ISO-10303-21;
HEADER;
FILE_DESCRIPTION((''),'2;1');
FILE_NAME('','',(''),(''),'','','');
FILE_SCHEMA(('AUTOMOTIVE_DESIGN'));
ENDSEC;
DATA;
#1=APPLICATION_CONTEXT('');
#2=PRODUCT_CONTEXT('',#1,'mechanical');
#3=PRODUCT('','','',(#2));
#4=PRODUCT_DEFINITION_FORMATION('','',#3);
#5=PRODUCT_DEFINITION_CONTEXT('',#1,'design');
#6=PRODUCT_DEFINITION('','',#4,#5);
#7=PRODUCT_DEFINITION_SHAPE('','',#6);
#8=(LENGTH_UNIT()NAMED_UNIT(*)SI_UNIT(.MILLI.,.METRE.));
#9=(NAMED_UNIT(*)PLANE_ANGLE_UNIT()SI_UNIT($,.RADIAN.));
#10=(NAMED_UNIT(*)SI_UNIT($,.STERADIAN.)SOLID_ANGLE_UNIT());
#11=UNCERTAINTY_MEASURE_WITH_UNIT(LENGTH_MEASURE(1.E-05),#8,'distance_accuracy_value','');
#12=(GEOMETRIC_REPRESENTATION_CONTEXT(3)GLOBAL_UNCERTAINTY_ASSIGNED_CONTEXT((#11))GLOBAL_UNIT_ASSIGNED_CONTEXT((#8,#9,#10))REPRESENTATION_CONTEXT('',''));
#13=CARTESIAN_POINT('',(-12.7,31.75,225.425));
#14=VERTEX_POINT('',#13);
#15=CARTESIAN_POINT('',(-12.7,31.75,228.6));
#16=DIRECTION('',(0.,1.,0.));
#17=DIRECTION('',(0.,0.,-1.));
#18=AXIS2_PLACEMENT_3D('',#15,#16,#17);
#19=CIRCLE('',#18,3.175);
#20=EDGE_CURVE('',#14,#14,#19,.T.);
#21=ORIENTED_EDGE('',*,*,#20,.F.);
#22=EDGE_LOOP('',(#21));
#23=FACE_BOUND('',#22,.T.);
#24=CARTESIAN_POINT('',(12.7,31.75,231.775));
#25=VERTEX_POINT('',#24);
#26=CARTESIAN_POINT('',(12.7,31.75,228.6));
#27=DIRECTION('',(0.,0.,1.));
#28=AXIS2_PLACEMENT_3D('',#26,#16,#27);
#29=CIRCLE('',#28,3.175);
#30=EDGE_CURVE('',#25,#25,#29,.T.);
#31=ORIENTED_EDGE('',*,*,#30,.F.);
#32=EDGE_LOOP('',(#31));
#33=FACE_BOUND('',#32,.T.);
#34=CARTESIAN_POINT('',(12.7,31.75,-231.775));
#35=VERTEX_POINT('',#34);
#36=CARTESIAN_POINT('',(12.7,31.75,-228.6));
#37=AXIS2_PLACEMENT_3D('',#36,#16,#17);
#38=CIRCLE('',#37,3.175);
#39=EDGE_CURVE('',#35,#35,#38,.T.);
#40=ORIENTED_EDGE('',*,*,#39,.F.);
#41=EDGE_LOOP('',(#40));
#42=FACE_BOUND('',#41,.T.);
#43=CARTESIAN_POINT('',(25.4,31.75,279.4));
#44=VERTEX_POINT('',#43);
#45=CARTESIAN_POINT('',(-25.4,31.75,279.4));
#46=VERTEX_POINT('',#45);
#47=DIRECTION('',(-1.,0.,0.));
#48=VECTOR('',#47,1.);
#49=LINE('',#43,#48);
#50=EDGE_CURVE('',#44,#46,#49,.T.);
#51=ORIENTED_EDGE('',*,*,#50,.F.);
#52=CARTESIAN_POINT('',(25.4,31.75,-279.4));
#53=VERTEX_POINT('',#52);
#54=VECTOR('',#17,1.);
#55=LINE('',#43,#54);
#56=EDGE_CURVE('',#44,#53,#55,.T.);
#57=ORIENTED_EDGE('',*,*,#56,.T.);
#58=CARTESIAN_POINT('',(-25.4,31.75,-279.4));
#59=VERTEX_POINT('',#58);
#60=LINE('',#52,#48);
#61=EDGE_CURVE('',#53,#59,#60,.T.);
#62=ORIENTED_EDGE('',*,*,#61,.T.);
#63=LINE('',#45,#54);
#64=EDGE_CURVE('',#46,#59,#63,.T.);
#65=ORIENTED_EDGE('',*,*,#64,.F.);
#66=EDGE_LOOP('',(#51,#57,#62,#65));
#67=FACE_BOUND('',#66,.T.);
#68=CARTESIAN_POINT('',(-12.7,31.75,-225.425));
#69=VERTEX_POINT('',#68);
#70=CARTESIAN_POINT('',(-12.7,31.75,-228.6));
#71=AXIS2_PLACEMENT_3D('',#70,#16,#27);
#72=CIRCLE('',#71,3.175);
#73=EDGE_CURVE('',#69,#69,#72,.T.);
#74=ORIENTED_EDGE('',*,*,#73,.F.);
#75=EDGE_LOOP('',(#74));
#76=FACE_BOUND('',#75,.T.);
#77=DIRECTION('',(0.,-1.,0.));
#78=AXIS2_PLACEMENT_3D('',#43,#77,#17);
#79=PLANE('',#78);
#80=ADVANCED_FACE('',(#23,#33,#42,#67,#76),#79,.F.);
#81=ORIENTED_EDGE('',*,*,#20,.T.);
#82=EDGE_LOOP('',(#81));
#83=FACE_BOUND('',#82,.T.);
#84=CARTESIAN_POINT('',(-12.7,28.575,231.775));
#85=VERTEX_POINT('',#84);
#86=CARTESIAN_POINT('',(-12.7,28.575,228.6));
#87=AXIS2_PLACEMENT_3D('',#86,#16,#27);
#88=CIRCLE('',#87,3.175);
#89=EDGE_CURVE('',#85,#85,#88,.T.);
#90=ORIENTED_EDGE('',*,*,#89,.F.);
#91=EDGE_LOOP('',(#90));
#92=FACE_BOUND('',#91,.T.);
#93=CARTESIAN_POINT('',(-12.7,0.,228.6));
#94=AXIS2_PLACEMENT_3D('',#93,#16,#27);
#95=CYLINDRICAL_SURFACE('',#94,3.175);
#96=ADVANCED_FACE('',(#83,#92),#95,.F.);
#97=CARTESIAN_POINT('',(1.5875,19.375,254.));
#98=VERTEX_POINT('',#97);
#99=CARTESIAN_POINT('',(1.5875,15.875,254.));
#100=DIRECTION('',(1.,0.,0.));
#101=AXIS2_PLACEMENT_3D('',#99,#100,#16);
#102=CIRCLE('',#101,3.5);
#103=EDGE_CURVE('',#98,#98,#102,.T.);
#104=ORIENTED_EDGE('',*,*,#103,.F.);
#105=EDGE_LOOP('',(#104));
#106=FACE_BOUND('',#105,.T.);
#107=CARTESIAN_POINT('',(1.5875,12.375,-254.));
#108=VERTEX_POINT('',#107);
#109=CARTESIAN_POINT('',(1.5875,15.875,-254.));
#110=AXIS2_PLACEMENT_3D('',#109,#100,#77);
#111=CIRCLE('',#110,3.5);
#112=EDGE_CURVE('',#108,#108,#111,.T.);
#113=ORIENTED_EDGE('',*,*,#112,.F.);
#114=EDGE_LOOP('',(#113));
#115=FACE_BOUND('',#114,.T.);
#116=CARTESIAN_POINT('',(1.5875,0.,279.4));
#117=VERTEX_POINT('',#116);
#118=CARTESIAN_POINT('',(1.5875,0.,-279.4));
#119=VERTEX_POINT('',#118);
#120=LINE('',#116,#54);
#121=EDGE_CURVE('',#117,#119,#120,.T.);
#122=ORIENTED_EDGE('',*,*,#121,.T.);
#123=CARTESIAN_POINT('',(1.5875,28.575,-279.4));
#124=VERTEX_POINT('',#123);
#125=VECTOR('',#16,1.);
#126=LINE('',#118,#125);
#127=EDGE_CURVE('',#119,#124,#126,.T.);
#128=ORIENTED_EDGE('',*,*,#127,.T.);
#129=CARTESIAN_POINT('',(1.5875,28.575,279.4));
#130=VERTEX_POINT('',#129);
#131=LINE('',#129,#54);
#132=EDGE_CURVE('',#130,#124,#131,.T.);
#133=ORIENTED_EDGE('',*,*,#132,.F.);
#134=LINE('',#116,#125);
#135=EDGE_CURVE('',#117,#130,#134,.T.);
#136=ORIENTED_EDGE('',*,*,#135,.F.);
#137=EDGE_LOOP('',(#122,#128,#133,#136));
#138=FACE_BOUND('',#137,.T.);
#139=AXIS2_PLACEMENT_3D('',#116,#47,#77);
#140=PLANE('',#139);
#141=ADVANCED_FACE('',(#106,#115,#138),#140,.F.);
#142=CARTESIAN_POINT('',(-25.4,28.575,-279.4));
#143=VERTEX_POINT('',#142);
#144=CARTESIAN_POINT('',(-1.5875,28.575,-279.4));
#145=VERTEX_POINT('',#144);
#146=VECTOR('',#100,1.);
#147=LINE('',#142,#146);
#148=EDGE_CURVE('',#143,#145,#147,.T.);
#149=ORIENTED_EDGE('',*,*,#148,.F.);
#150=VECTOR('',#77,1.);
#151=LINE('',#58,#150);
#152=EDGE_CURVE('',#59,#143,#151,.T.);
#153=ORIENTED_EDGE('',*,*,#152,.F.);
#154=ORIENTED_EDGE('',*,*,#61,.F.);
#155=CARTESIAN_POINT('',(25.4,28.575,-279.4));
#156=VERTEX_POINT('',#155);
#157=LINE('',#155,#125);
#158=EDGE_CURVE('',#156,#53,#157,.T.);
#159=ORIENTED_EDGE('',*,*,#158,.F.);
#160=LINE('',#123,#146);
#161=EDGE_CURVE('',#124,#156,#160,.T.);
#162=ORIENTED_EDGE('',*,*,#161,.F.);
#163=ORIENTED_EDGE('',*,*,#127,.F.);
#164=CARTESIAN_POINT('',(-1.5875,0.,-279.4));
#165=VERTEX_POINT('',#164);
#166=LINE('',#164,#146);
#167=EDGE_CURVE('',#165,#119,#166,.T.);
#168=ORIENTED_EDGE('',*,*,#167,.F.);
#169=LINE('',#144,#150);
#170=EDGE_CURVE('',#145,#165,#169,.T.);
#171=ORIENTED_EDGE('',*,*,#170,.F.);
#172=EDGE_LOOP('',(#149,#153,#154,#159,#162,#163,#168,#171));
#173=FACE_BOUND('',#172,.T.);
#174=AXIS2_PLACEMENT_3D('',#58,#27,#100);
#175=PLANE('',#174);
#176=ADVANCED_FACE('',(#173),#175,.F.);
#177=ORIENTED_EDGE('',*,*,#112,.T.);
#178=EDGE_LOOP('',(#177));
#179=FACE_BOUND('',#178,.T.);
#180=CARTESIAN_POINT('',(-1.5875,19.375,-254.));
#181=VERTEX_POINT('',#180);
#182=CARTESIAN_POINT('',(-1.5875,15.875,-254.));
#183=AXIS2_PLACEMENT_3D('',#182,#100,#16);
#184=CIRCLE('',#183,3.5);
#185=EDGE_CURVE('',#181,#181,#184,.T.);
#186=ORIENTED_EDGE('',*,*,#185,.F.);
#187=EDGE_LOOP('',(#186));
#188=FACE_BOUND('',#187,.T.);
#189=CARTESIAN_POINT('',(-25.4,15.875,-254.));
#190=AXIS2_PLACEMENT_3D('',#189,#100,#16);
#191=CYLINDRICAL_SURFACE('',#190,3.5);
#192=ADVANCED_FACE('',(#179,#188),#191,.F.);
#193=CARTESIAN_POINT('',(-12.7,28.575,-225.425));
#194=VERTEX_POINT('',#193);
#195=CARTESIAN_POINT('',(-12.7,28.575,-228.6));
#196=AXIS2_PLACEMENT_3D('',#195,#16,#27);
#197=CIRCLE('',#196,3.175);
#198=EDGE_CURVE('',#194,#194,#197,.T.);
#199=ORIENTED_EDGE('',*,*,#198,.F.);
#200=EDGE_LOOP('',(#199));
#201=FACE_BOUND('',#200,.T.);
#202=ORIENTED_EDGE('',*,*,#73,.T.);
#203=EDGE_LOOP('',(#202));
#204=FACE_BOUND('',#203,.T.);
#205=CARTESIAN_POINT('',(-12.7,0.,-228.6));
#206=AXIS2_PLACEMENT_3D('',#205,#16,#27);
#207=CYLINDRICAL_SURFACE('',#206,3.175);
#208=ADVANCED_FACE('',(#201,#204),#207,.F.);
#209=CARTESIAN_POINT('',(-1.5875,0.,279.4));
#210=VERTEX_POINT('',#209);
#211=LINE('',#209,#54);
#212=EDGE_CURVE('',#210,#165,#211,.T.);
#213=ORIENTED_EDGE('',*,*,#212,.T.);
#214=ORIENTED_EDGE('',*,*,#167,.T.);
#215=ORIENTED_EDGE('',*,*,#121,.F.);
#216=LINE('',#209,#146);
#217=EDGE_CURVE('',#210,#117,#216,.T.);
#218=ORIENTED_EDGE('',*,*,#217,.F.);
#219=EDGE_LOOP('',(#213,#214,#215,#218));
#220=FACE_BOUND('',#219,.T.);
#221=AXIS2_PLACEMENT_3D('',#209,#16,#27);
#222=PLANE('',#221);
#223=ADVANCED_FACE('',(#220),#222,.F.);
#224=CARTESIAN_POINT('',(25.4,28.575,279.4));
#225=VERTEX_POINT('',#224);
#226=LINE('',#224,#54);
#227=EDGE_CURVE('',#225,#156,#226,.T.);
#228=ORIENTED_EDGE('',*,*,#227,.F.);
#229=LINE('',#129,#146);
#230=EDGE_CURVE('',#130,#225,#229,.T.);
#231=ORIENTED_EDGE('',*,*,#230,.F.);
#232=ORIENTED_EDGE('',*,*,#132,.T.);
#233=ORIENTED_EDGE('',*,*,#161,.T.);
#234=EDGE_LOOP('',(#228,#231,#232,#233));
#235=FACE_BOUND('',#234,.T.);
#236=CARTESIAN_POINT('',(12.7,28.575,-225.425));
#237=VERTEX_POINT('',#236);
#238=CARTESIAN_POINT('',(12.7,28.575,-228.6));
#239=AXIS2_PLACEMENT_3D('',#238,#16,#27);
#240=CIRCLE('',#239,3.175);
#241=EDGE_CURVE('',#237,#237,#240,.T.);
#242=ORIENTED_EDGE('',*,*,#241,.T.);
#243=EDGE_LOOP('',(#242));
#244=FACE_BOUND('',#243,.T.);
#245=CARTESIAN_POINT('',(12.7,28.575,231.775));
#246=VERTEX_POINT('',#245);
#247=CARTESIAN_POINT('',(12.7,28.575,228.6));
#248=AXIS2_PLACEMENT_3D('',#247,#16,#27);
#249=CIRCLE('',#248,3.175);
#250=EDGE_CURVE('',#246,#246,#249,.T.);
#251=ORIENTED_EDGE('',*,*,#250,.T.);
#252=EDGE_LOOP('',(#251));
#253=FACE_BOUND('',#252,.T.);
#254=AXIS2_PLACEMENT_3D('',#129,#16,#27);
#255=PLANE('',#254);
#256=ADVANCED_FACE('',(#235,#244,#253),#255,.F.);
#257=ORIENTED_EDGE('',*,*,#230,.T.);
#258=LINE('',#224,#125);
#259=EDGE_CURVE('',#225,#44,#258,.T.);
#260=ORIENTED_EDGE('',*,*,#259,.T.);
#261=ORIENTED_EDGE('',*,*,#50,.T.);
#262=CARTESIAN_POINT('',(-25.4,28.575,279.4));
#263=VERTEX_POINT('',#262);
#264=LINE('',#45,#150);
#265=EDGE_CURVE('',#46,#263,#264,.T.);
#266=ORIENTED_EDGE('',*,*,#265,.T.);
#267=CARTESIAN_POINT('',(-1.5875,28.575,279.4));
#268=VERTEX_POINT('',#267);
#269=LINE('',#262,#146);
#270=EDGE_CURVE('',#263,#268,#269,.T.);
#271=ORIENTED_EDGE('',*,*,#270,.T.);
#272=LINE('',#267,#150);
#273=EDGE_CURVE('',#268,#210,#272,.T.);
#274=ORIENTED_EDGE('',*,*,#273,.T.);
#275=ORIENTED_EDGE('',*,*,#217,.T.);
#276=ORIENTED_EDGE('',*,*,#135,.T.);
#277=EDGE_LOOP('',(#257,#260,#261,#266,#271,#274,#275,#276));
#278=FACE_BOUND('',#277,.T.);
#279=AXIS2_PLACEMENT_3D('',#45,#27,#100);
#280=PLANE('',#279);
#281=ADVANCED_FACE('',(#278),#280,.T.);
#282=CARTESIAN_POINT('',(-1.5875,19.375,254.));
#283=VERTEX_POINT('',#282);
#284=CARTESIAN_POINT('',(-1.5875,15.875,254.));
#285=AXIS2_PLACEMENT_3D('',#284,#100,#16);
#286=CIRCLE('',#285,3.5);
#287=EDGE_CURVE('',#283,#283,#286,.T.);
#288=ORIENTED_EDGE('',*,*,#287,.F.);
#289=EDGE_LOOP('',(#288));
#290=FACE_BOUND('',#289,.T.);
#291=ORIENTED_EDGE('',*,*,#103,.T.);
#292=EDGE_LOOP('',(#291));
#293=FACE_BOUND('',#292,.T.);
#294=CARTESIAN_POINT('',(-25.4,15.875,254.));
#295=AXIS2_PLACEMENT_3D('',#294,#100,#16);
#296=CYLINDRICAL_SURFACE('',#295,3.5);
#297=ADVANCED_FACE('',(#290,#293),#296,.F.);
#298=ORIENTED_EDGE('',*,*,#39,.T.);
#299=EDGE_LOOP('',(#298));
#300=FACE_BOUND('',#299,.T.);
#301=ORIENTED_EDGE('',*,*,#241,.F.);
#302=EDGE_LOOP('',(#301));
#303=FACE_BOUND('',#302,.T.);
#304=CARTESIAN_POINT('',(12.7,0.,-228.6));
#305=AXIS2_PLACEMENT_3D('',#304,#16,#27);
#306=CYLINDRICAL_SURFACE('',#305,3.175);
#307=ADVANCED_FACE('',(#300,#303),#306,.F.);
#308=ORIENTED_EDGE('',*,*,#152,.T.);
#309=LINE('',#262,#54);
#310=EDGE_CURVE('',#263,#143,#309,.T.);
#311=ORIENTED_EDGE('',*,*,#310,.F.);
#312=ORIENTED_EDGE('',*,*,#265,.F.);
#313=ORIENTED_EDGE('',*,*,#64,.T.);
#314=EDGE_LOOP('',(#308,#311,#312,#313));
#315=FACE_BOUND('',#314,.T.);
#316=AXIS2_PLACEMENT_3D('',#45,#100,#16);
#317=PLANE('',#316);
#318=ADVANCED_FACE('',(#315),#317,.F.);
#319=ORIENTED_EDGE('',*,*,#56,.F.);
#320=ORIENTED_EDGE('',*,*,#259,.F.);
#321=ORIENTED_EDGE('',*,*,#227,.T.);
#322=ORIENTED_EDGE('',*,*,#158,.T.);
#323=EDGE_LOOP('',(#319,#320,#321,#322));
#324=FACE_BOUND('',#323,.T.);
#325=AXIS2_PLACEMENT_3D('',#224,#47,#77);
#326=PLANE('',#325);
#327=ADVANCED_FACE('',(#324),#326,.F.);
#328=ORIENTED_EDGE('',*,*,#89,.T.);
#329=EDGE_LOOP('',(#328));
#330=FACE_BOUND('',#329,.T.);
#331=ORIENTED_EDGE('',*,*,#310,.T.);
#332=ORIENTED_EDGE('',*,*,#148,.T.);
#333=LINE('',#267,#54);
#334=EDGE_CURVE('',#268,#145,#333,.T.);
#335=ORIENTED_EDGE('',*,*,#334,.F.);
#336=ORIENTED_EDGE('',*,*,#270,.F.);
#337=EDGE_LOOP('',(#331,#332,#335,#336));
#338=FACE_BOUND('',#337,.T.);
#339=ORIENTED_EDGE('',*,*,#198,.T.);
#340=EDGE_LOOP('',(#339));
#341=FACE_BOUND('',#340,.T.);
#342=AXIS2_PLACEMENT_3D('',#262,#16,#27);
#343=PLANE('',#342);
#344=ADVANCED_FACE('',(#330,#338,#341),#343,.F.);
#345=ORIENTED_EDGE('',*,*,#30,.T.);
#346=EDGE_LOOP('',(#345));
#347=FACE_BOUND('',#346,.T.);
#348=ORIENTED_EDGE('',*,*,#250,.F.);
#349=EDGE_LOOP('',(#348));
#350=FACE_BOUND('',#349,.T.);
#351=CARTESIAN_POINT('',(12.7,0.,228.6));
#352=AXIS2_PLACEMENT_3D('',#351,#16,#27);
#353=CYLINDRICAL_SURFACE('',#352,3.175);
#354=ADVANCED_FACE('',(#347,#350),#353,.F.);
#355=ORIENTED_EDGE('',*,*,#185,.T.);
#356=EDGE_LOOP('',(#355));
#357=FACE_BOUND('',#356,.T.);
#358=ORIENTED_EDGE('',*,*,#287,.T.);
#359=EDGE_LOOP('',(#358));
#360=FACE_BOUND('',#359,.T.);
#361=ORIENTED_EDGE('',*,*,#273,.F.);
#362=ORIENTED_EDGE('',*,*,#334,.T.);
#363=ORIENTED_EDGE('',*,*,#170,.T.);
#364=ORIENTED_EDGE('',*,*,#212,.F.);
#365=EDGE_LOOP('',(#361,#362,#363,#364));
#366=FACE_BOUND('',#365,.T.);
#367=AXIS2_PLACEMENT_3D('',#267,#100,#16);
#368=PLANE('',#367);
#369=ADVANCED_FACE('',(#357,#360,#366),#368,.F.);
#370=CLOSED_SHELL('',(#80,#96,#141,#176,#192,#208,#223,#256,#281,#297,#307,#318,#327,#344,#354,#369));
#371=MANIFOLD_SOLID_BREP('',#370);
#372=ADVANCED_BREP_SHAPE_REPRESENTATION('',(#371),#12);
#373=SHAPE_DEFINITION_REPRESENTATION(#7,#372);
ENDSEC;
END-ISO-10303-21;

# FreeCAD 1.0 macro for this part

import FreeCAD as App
import Part
import Sketcher
from FreeCAD import Vector
Q = App.Units.Quantity

doc = App.newDocument("Part")
params = doc.addObject("Spreadsheet::Sheet", "Params")
for row, (alias, value) in enumerate([
    ("sketch1_width", "2 in"),
    ("sketch1_width2", "0.9375 in"),
    ("sketch1_height", "1.125 in"),
    ("pad1_length", "22 in"),
    ("sketch3_diameter", "0.25 in"),
], start=1):
    params.set(f"A{row}", alias)
    params.set(f"B{row}", "=" + value)
    params.setAlias(f"B{row}", alias)

body = doc.addObject("PartDesign::Body", "Body")

# Sketch on XY plane
sketch1 = body.newObject("Sketcher::SketchObject", "Sketch")
sketch1.AttachmentSupport = (doc.getObject("XY_Plane"), [""])
sketch1.MapMode = "FlatFace"
sketch1.addGeometry(Part.LineSegment(Vector(-25.4, 31.75, 0), Vector(-25.4, 28.575, 0)), False)
sketch1.addGeometry(Part.LineSegment(Vector(-25.4, 28.575, 0), Vector(-1.5875, 28.575, 0)), False)
sketch1.addGeometry(Part.LineSegment(Vector(-1.5875, 28.575, 0), Vector(-1.5875, 0, 0)), False)
sketch1.addGeometry(Part.LineSegment(Vector(-1.5875, 0, 0), Vector(1.5875, 0, 0)), False)
sketch1.addGeometry(Part.LineSegment(Vector(1.5875, 0, 0), Vector(1.5875, 28.575, 0)), False)
sketch1.addGeometry(Part.LineSegment(Vector(1.5875, 28.575, 0), Vector(25.4, 28.575, 0)), False)
sketch1.addGeometry(Part.LineSegment(Vector(25.4, 28.575, 0), Vector(25.4, 31.75, 0)), False)
sketch1.addGeometry(Part.LineSegment(Vector(25.4, 31.75, 0), Vector(-25.4, 31.75, 0)), False)
sketch1.addConstraint(Sketcher.Constraint("Coincident", 0, 2, 1, 1))
sketch1.addConstraint(Sketcher.Constraint("Coincident", 1, 2, 2, 1))
sketch1.addConstraint(Sketcher.Constraint("Coincident", 2, 2, 3, 1))
sketch1.addConstraint(Sketcher.Constraint("Coincident", 3, 2, 4, 1))
sketch1.addConstraint(Sketcher.Constraint("Coincident", 4, 2, 5, 1))
sketch1.addConstraint(Sketcher.Constraint("Coincident", 5, 2, 6, 1))
sketch1.addConstraint(Sketcher.Constraint("Coincident", 6, 2, 7, 1))
sketch1.addConstraint(Sketcher.Constraint("Coincident", 7, 2, 0, 1))
sketch1.addConstraint(Sketcher.Constraint("Vertical", 0))
sketch1.addConstraint(Sketcher.Constraint("Horizontal", 1))
sketch1.addConstraint(Sketcher.Constraint("Vertical", 2))
sketch1.addConstraint(Sketcher.Constraint("Horizontal", 3))
sketch1.addConstraint(Sketcher.Constraint("Vertical", 4))
sketch1.addConstraint(Sketcher.Constraint("Horizontal", 5))
sketch1.addConstraint(Sketcher.Constraint("Vertical", 6))
sketch1.addConstraint(Sketcher.Constraint("Horizontal", 7))
sketch1.addConstraint(Sketcher.Constraint("Symmetric", 2, 2, 3, 2, -1, 1))
sketch1.addConstraint(Sketcher.Constraint("Symmetric", 0, 2, 5, 2, -2))
sketch1.addConstraint(Sketcher.Constraint("Equal", 3, 0))
sketch1.addConstraint(Sketcher.Constraint("DistanceX", 7, 2, 7, 1, Q("2 in")))
sketch1.addConstraint(Sketcher.Constraint("DistanceX", 1, 1, 1, 2, Q("0.9375 in")))
sketch1.addConstraint(Sketcher.Constraint("DistanceY", 2, 2, 2, 1, Q("1.125 in")))
sketch1.setExpression("Constraints[19]", "Params.sketch1_width")
sketch1.setExpression("Constraints[20]", "Params.sketch1_width2")
sketch1.setExpression("Constraints[21]", "Params.sketch1_height")
pad1 = body.newObject("PartDesign::Pad", "Pad")
pad1.Profile = sketch1
pad1.setExpression("Length", "Params.pad1_length")
pad1.Midplane = True

# Sketch on YZ plane
sketch2 = body.newObject("Sketcher::SketchObject", "Sketch001")
sketch2.AttachmentSupport = (doc.getObject("YZ_Plane"), [""])
sketch2.MapMode = "FlatFace"
sketch2.AttachmentOffset = App.Placement(Vector(0, 0, 0.0625 * 25.4), App.Rotation())
sketch2.addGeometry(Part.Circle(Vector(15.875, 254, 0), Vector(0, 0, 1), 3.5), False)
sketch2.addGeometry(Part.Circle(Vector(15.875, -254, 0), Vector(0, 0, 1), 3.5), False)
sketch2.addConstraint(Sketcher.Constraint("Equal", 0, 1))
sketch2.addConstraint(Sketcher.Constraint("Symmetric", 0, 3, 1, 3, -1))
sketch2.addConstraint(Sketcher.Constraint("DistanceY", -1, 1, 0, 3, Q("10 in")))
sketch2.addConstraint(Sketcher.Constraint("Diameter", 0, Q("7 mm")))
sketch2.addConstraint(Sketcher.Constraint("DistanceX", -1, 1, 0, 3, Q("0.625 in")))
pocket1 = body.newObject("PartDesign::Pocket", "Pocket")
pocket1.Profile = sketch2
pocket1.Type = "ThroughAll"

# Sketch on XZ plane
sketch3 = body.newObject("Sketcher::SketchObject", "Sketch002")
sketch3.AttachmentSupport = (doc.getObject("XZ_Plane"), [""])
sketch3.MapMode = "FlatFace"
sketch3.AttachmentOffset = App.Placement(Vector(0, 0, -1.25 * 25.4), App.Rotation())
sketch3.addGeometry(Part.Circle(Vector(-12.7, -228.6, 0), Vector(0, 0, 1), 3.175), False)
sketch3.addGeometry(Part.Circle(Vector(12.7, -228.6, 0), Vector(0, 0, 1), 3.175), False)
sketch3.addGeometry(Part.Circle(Vector(12.7, 228.6, 0), Vector(0, 0, 1), 3.175), False)
sketch3.addGeometry(Part.Circle(Vector(-12.7, 228.6, 0), Vector(0, 0, 1), 3.175), False)
sketch3.addConstraint(Sketcher.Constraint("Equal", 0, 1))
sketch3.addConstraint(Sketcher.Constraint("Equal", 1, 2))
sketch3.addConstraint(Sketcher.Constraint("Equal", 2, 3))
sketch3.addConstraint(Sketcher.Constraint("Symmetric", 0, 3, 2, 3, -1, 1))
sketch3.addConstraint(Sketcher.Constraint("Symmetric", 1, 3, 3, 3, -1, 1))
sketch3.addConstraint(Sketcher.Constraint("Symmetric", 0, 3, 1, 3, -2))
sketch3.addConstraint(Sketcher.Constraint("Diameter", 0, Q("0.25 in")))
sketch3.addConstraint(Sketcher.Constraint("DistanceY", 0, 3, -1, 1, Q("9 in")))
sketch3.addConstraint(Sketcher.Constraint("DistanceX", 0, 3, 1, 3, Q("1 in")))
sketch3.setExpression("Constraints[6]", "Params.sketch3_diameter")
pocket2 = body.newObject("PartDesign::Pocket", "Pocket001")
pocket2.Profile = sketch3
pocket2.Type = "ThroughAll"
pocket2.Reversed = True

doc.recompute()
